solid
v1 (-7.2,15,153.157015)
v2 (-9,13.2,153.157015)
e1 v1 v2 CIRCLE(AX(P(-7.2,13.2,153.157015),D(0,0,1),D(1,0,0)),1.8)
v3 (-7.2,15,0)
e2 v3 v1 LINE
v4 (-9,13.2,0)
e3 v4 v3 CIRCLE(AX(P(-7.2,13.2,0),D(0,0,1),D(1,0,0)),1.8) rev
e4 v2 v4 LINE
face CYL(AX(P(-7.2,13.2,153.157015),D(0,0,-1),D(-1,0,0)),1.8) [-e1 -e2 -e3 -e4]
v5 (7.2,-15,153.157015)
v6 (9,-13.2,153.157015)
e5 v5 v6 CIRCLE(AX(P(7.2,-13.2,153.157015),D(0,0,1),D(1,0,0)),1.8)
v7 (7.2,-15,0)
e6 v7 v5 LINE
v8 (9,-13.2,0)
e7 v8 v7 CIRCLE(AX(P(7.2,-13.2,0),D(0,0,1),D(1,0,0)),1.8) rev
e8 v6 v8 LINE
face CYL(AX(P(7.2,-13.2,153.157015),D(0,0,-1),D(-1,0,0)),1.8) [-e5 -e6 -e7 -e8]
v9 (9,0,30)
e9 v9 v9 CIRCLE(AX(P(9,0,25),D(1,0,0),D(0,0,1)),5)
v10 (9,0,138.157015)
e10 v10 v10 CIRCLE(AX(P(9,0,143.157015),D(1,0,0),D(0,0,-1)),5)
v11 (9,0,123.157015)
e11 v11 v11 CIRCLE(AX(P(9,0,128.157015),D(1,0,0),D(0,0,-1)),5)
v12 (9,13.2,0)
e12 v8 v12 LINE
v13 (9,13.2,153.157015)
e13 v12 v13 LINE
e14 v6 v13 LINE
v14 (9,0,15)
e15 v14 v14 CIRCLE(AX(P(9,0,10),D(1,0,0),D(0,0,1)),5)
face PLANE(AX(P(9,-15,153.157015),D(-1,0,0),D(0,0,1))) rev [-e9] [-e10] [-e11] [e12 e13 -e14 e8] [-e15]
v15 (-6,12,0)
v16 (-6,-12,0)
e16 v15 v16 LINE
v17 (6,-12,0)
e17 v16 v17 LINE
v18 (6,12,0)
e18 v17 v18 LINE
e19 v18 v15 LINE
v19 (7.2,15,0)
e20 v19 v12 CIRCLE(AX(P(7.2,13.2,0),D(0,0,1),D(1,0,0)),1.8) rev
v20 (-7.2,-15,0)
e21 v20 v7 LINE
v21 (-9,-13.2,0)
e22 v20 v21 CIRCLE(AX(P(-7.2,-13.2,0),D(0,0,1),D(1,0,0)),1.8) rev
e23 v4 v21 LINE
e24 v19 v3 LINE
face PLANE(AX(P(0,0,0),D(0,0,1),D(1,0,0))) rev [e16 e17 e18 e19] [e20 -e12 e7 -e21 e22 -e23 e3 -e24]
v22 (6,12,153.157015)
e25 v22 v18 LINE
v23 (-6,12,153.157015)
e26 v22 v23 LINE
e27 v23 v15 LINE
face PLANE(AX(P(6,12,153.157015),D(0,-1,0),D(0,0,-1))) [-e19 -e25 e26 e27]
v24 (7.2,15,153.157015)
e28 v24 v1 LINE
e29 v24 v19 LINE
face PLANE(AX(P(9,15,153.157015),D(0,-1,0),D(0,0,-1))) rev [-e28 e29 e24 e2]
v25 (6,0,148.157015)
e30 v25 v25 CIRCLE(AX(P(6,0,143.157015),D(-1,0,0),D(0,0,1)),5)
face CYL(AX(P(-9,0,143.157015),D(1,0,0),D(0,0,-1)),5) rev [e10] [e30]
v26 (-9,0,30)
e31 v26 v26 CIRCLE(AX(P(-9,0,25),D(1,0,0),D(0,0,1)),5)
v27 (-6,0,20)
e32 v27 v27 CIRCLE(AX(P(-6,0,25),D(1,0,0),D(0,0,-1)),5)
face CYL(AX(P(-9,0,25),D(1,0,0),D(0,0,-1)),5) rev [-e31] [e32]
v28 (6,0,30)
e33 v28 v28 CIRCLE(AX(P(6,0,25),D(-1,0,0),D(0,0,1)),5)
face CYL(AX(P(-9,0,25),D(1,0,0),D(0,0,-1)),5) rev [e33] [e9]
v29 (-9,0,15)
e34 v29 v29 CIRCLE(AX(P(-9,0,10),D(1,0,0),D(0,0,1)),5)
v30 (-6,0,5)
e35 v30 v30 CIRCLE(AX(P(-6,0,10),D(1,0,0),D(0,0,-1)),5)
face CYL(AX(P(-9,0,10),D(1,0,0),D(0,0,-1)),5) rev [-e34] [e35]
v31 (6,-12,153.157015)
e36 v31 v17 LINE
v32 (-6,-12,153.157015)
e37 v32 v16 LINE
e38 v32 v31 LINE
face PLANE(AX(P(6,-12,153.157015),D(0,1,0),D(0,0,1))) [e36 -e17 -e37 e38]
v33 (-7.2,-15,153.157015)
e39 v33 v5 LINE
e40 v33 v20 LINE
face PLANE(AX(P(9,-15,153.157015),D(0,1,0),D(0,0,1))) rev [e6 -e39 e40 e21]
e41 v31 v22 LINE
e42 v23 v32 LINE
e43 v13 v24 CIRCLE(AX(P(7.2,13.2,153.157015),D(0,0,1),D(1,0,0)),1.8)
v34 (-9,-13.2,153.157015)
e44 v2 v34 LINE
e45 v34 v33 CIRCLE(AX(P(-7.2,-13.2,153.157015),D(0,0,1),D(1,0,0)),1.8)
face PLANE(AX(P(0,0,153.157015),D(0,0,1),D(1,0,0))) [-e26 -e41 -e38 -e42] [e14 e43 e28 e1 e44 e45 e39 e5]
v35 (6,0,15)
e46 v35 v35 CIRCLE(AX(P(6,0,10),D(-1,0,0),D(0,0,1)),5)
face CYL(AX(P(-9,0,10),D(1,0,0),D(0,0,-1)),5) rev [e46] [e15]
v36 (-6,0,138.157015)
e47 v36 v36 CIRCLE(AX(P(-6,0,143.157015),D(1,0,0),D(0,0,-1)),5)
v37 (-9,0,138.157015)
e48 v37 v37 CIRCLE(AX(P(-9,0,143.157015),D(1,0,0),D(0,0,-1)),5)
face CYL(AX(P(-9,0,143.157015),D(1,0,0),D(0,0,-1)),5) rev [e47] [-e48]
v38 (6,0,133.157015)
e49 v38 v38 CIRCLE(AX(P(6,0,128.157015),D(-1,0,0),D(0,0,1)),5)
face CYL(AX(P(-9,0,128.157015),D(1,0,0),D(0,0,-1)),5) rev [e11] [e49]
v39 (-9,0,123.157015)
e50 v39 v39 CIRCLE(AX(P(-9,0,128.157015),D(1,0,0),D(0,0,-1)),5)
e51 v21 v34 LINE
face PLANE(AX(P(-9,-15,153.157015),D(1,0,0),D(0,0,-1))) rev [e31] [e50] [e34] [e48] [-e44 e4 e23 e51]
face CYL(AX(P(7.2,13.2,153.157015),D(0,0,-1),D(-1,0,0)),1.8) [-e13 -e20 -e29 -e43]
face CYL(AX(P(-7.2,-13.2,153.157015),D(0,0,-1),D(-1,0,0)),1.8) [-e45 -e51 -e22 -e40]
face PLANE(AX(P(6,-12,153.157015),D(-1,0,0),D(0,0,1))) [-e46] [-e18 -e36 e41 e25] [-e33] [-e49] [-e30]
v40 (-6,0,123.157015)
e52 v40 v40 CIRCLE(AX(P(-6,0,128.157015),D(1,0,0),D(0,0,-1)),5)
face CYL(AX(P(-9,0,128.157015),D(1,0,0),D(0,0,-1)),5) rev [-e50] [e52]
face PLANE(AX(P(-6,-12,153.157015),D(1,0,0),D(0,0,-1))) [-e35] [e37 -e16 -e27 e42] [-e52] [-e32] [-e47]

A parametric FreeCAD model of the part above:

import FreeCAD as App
import Part
import Sketcher
from FreeCAD import Vector
Q = App.Units.Quantity


def edges_at(feature, points):
    """Names of the edges that pass closest to the given points."""
    edges = feature.Shape.Edges
    near = lambda p: min(range(len(edges)), key=lambda i: edges[i].distToShape(Part.Vertex(*p))[0])
    return sorted({f"Edge{near(p) + 1}" for p in points})

doc = App.newDocument("Part")
body = doc.addObject("PartDesign::Body", "Body")

# Sketch on XY plane
sketch1 = body.newObject("Sketcher::SketchObject", "Sketch")
sketch1.AttachmentSupport = (doc.getObject("XY_Plane"), [""])
sketch1.MapMode = "FlatFace"
sketch1.addGeometry([
    Part.LineSegment(Vector(-9, 15, 0), Vector(-9, -15, 0)),  # 0
    Part.LineSegment(Vector(-9, -15, 0), Vector(9, -15, 0)),  # 1
    Part.LineSegment(Vector(9, -15, 0), Vector(9, 15, 0)),  # 2
    Part.LineSegment(Vector(9, 15, 0), Vector(-9, 15, 0)),  # 3
    Part.LineSegment(Vector(6, -12, 0), Vector(-6, -12, 0)),  # 4
    Part.LineSegment(Vector(-6, -12, 0), Vector(-6, 12, 0)),  # 5
    Part.LineSegment(Vector(-6, 12, 0), Vector(6, 12, 0)),  # 6
    Part.LineSegment(Vector(6, 12, 0), Vector(6, -12, 0)),  # 7
], False)
sketch1.addConstraint([
    Sketcher.Constraint("Coincident", 0, 2, 1, 1),
    Sketcher.Constraint("Coincident", 1, 2, 2, 1),
    Sketcher.Constraint("Coincident", 2, 2, 3, 1),
    Sketcher.Constraint("Coincident", 3, 2, 0, 1),
    Sketcher.Constraint("Coincident", 4, 2, 5, 1),
    Sketcher.Constraint("Coincident", 5, 2, 6, 1),
    Sketcher.Constraint("Coincident", 6, 2, 7, 1),
    Sketcher.Constraint("Coincident", 7, 2, 4, 1),
    Sketcher.Constraint("Vertical", 0),
    Sketcher.Constraint("Horizontal", 1),
    Sketcher.Constraint("Vertical", 2),
    Sketcher.Constraint("Horizontal", 3),
    Sketcher.Constraint("Horizontal", 4),
    Sketcher.Constraint("Vertical", 5),
    Sketcher.Constraint("Horizontal", 6),
    Sketcher.Constraint("Vertical", 7),
    Sketcher.Constraint("Symmetric", 0, 2, 2, 2, -1, 1),
    Sketcher.Constraint("Symmetric", 4, 2, 6, 2, -1, 1),
    Sketcher.Constraint("DistanceX", 1, 1, 1, 2, Q("18 mm")),
    Sketcher.Constraint("DistanceX", 4, 2, 4, 1, Q("12 mm")),
    Sketcher.Constraint("DistanceY", 0, 2, 0, 1, Q("30 mm")),
    Sketcher.Constraint("DistanceY", 5, 1, 5, 2, Q("24 mm")),
])
pad1 = body.newObject("PartDesign::Pad", "Pad")
pad1.Profile = sketch1
pad1.Length = 153.157015

# Sketch on YZ plane
sketch2 = body.newObject("Sketcher::SketchObject", "Sketch001")
sketch2.AttachmentSupport = (doc.getObject("YZ_Plane"), [""])
sketch2.MapMode = "FlatFace"
sketch2.AttachmentOffset = App.Placement(Vector(0, 0, 9), App.Rotation())
sketch2.addGeometry([
    Part.Circle(Vector(0, 143, 0), Vector(0, 0, 1), 5),
    Part.Circle(Vector(0, 128, 0), Vector(0, 0, 1), 5),
    Part.Circle(Vector(0, 25, 0), Vector(0, 0, 1), 5),
    Part.Circle(Vector(0, 10, 0), Vector(0, 0, 1), 5),
], False)
sketch2.addConstraint([
    Sketcher.Constraint("Equal", 0, 1),
    Sketcher.Constraint("Equal", 1, 2),
    Sketcher.Constraint("Equal", 2, 3),
    Sketcher.Constraint("PointOnObject", 0, 3, -2),
    Sketcher.Constraint("PointOnObject", 1, 3, -2),
    Sketcher.Constraint("PointOnObject", 2, 3, -2),
    Sketcher.Constraint("PointOnObject", 3, 3, -2),
    Sketcher.Constraint("Diameter", 0, Q("10 mm")),
    Sketcher.Constraint("DistanceY", -1, 1, 2, 3, Q("25 mm")),
    Sketcher.Constraint("DistanceY", -1, 1, 3, 3, Q("10 mm")),
    Sketcher.Constraint("DistanceY", 1, 3, 0, 3, Q("15 mm")),
    Sketcher.Constraint("DistanceY", -1, 1, 0, 3, Q("143.157015 mm")),
])
pocket1 = body.newObject("PartDesign::Pocket", "Pocket")
pocket1.Profile = sketch2
pocket1.Type = "ThroughAll"
doc.recompute()

fillet = body.newObject("PartDesign::Fillet", "Fillet")
fillet.Base = (pocket1, edges_at(pocket1, [
    (-9, 15, 76.579),
    (9, 15, 76.579),
    (9, -15, 76.579),
    (-9, -15, 76.579),
]))
fillet.Radius = 1.8

doc.recompute()
